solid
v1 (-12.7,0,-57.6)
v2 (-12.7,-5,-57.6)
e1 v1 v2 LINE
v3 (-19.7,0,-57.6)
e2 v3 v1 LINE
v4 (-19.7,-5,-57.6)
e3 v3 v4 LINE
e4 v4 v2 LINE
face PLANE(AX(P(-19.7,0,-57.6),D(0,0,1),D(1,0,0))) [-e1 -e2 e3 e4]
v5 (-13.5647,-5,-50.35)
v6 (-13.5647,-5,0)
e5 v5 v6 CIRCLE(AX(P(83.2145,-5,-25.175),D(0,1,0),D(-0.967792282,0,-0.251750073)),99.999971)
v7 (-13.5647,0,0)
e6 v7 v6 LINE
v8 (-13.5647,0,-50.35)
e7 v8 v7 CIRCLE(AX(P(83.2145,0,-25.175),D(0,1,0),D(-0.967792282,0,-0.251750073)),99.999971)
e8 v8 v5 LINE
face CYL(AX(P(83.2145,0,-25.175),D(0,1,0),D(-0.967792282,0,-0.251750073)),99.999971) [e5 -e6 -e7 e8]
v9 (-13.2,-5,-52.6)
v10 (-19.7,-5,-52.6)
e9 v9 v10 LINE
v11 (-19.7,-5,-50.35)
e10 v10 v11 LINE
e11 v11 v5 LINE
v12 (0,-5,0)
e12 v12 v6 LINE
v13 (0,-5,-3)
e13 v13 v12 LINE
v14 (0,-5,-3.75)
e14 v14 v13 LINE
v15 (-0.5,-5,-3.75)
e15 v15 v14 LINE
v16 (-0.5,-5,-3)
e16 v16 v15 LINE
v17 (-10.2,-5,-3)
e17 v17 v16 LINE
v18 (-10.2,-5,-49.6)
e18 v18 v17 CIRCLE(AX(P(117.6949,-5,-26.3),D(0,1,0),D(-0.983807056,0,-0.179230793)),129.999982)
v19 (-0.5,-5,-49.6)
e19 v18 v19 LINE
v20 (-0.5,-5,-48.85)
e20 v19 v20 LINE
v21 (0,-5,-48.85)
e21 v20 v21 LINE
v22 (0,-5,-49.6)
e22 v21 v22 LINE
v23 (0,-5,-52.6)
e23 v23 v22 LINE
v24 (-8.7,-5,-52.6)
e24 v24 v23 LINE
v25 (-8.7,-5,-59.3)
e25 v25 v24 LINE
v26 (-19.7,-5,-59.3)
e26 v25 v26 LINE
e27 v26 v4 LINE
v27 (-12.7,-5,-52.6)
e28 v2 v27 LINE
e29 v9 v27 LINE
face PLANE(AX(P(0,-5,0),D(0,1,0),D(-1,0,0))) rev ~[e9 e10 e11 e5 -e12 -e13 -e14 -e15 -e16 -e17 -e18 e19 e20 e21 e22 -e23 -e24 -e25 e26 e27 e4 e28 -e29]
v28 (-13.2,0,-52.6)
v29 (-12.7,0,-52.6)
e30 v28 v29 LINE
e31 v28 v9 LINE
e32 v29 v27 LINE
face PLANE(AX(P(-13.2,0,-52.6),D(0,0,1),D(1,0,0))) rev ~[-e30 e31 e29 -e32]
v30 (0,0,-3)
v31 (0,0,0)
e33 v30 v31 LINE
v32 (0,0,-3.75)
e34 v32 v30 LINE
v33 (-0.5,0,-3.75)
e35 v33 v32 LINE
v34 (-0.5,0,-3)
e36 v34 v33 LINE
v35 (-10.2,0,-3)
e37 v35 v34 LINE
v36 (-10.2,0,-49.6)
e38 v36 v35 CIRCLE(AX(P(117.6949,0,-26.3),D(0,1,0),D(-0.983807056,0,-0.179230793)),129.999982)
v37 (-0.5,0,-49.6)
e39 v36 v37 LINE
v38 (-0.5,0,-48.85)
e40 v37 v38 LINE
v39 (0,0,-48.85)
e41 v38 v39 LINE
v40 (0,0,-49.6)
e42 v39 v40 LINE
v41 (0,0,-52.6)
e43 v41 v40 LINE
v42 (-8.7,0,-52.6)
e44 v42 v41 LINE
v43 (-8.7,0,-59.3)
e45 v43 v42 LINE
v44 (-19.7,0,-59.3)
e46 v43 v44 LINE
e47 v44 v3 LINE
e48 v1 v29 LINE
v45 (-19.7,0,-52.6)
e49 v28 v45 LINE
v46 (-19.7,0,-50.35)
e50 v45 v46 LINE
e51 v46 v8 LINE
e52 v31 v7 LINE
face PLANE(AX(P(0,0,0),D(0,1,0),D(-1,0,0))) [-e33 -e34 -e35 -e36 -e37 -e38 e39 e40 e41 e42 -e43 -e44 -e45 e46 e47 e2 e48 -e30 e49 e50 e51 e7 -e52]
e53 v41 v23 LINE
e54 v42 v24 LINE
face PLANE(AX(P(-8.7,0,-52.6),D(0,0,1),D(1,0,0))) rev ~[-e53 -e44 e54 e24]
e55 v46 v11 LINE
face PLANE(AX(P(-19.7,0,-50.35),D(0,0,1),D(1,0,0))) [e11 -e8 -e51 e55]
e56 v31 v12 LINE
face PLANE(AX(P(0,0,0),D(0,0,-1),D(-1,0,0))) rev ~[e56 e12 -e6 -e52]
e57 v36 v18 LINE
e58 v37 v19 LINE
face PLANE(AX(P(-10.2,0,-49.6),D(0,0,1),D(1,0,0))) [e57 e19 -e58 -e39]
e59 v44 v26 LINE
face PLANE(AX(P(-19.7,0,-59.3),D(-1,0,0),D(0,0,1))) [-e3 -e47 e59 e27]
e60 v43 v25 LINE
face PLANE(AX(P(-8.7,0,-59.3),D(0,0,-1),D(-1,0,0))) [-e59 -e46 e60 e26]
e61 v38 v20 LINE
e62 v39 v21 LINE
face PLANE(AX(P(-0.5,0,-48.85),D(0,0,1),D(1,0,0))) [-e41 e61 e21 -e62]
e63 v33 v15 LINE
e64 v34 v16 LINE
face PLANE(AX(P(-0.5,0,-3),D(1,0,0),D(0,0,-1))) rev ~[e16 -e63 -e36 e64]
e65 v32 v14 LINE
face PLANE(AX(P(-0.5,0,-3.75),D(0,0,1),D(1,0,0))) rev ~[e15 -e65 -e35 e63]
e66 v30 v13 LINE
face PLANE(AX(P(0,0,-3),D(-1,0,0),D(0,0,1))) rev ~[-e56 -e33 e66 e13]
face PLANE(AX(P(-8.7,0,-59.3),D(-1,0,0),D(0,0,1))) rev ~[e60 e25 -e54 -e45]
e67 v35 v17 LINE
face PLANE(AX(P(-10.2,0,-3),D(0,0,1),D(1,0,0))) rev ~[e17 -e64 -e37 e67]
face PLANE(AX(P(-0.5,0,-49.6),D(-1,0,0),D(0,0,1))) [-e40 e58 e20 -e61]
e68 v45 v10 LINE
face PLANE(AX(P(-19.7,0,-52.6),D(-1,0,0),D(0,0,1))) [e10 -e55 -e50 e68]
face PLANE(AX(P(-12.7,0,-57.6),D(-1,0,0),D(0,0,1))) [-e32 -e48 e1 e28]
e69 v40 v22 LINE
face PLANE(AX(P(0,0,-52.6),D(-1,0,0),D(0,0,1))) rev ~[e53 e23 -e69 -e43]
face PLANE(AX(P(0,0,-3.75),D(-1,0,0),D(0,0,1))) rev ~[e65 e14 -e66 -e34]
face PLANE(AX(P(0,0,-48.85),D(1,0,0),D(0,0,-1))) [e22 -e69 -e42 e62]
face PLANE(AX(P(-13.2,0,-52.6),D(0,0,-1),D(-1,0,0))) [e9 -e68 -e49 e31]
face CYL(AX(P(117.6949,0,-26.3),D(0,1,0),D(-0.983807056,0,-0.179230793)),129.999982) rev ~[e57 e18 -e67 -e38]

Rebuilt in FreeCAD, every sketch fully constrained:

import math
import FreeCAD as App
import Part
import Sketcher
from FreeCAD import Vector

doc = App.newDocument("Part")
body = doc.addObject("PartDesign::Body", "Body")

# Sketch on XZ plane
sketch1 = body.newObject("Sketcher::SketchObject", "Sketch")
sketch1.AttachmentSupport = (doc.getObject("XZ_Plane"), [""])
sketch1.MapMode = "FlatFace"
sketch1.addGeometry(Part.LineSegment(Vector(-0.5, -3, 0), Vector(-10.2, -3, 0)), False)
sketch1.addGeometry(Part.ArcOfCircle(Part.Circle(Vector(117.7, -26.3, 0), Vector(0, 0, 1), 130), math.radians(170), math.radians(190)), False)
sketch1.addGeometry(Part.LineSegment(Vector(-10.2, -49.6, 0), Vector(-0.5, -49.6, 0)), False)
sketch1.addGeometry(Part.LineSegment(Vector(-0.5, -49.6, 0), Vector(-0.5, -48.9, 0)), False)
sketch1.addGeometry(Part.LineSegment(Vector(-0.5, -48.9, 0), Vector(0, -48.9, 0)), False)
sketch1.addGeometry(Part.LineSegment(Vector(0, -48.9, 0), Vector(0, -52.6, 0)), False)
sketch1.addGeometry(Part.LineSegment(Vector(0, -52.6, 0), Vector(-8.7, -52.6, 0)), False)
sketch1.addGeometry(Part.LineSegment(Vector(-8.7, -52.6, 0), Vector(-8.7, -59.3, 0)), False)
sketch1.addGeometry(Part.LineSegment(Vector(-8.7, -59.3, 0), Vector(-19.7, -59.3, 0)), False)
sketch1.addGeometry(Part.LineSegment(Vector(-19.7, -59.3, 0), Vector(-19.7, -57.6, 0)), False)
sketch1.addGeometry(Part.LineSegment(Vector(-19.7, -57.6, 0), Vector(-12.7, -57.6, 0)), False)
sketch1.addGeometry(Part.LineSegment(Vector(-12.7, -57.6, 0), Vector(-12.7, -52.6, 0)), False)
sketch1.addGeometry(Part.LineSegment(Vector(-12.7, -52.6, 0), Vector(-19.7, -52.6, 0)), False)
sketch1.addGeometry(Part.LineSegment(Vector(-19.7, -52.6, 0), Vector(-19.7, -50.4, 0)), False)
sketch1.addGeometry(Part.LineSegment(Vector(-19.7, -50.4, 0), Vector(-13.6, -50.4, 0)), False)
sketch1.addGeometry(Part.ArcOfCircle(Part.Circle(Vector(83.2, -25.2, 0), Vector(0, 0, 1), 100), math.radians(165), math.radians(195)), False)
sketch1.addGeometry(Part.LineSegment(Vector(-13.6, 0, 0), Vector(0, 0, 0)), False)
sketch1.addGeometry(Part.LineSegment(Vector(0, 0, 0), Vector(0, -3.8, 0)), False)
sketch1.addGeometry(Part.LineSegment(Vector(0, -3.8, 0), Vector(-0.5, -3.8, 0)), False)
sketch1.addGeometry(Part.LineSegment(Vector(-0.5, -3.8, 0), Vector(-0.5, -3, 0)), False)
sketch1.addConstraint(Sketcher.Constraint("Coincident", 0, 2, 1, 1))
sketch1.addConstraint(Sketcher.Constraint("Coincident", 1, 2, 2, 1))
sketch1.addConstraint(Sketcher.Constraint("Coincident", 2, 2, 3, 1))
sketch1.addConstraint(Sketcher.Constraint("Coincident", 3, 2, 4, 1))
sketch1.addConstraint(Sketcher.Constraint("Coincident", 4, 2, 5, 1))
sketch1.addConstraint(Sketcher.Constraint("Coincident", 5, 2, 6, 1))
sketch1.addConstraint(Sketcher.Constraint("Coincident", 6, 2, 7, 1))
sketch1.addConstraint(Sketcher.Constraint("Coincident", 7, 2, 8, 1))
sketch1.addConstraint(Sketcher.Constraint("Coincident", 8, 2, 9, 1))
sketch1.addConstraint(Sketcher.Constraint("Coincident", 9, 2, 10, 1))
sketch1.addConstraint(Sketcher.Constraint("Coincident", 10, 2, 11, 1))
sketch1.addConstraint(Sketcher.Constraint("Coincident", 11, 2, 12, 1))
sketch1.addConstraint(Sketcher.Constraint("Coincident", 12, 2, 13, 1))
sketch1.addConstraint(Sketcher.Constraint("Coincident", 13, 2, 14, 1))
sketch1.addConstraint(Sketcher.Constraint("Coincident", 14, 2, 15, 2))
sketch1.addConstraint(Sketcher.Constraint("Coincident", 15, 1, 16, 1))
sketch1.addConstraint(Sketcher.Constraint("Coincident", 16, 2, 17, 1))
sketch1.addConstraint(Sketcher.Constraint("Coincident", 17, 2, 18, 1))
sketch1.addConstraint(Sketcher.Constraint("Coincident", 18, 2, 19, 1))
sketch1.addConstraint(Sketcher.Constraint("Coincident", 19, 2, 0, 1))
sketch1.addConstraint(Sketcher.Constraint("Horizontal", 0))
sketch1.addConstraint(Sketcher.Constraint("Horizontal", 2))
sketch1.addConstraint(Sketcher.Constraint("Vertical", 3))
sketch1.addConstraint(Sketcher.Constraint("Horizontal", 4))
sketch1.addConstraint(Sketcher.Constraint("Vertical", 5))
sketch1.addConstraint(Sketcher.Constraint("Horizontal", 6))
sketch1.addConstraint(Sketcher.Constraint("Vertical", 7))
sketch1.addConstraint(Sketcher.Constraint("Horizontal", 8))
sketch1.addConstraint(Sketcher.Constraint("Vertical", 9))
sketch1.addConstraint(Sketcher.Constraint("Horizontal", 10))
sketch1.addConstraint(Sketcher.Constraint("Vertical", 11))
sketch1.addConstraint(Sketcher.Constraint("Horizontal", 12))
sketch1.addConstraint(Sketcher.Constraint("Vertical", 13))
sketch1.addConstraint(Sketcher.Constraint("Horizontal", 14))
sketch1.addConstraint(Sketcher.Constraint("Horizontal", 16))
sketch1.addConstraint(Sketcher.Constraint("Vertical", 17))
sketch1.addConstraint(Sketcher.Constraint("Horizontal", 18))
sketch1.addConstraint(Sketcher.Constraint("Vertical", 19))
sketch1.addConstraint(Sketcher.Constraint("Coincident", 16, 2, -1, 1))
sketch1.addConstraint(Sketcher.Constraint("PointOnObject", 4, 2, -2))
sketch1.addConstraint(Sketcher.Constraint("Horizontal", 6, 2, 11, 2))
sketch1.addConstraint(Sketcher.Constraint("Vertical", 0, 2, 1, 2))
sketch1.addConstraint(Sketcher.Constraint("Vertical", 9, 2, 12, 2))
sketch1.addConstraint(Sketcher.Constraint("Vertical", 14, 2, 15, 1))
sketch1.addConstraint(Sketcher.Constraint("Vertical", 3, 2, 18, 2))
sketch1.addConstraint(Sketcher.Constraint("Equal", 5, 17))
sketch1.addConstraint(Sketcher.Constraint("Equal", 3, 19))
sketch1.addConstraint(Sketcher.Constraint("Radius", 1, 130.0))
sketch1.addConstraint(Sketcher.Constraint("Radius", 15, 100.0))
sketch1.addConstraint(Sketcher.Constraint("DistanceX", 10, 1, 10, 2, 7.0))
sketch1.addConstraint(Sketcher.Constraint("DistanceY", 11, 1, 11, 2, 5.0))
sketch1.addConstraint(Sketcher.Constraint("DistanceX", 0, 2, 0, 1, 9.7))
sketch1.addConstraint(Sketcher.Constraint("DistanceX", 4, 1, 4, 2, 0.5))
sketch1.addConstraint(Sketcher.Constraint("DistanceY", 9, 1, 9, 2, 1.7))
sketch1.addConstraint(Sketcher.Constraint("DistanceY", 0, 2, -1, 1, 3.0))
sketch1.addConstraint(Sketcher.Constraint("DistanceX", 10, 2, 7, 2, 4.0))
sketch1.addConstraint(Sketcher.Constraint("DistanceY", 3, 1, 3, 2, 0.75))
sketch1.addConstraint(Sketcher.Constraint("DistanceY", 13, 1, 13, 2, 2.25))
sketch1.addConstraint(Sketcher.Constraint("DistanceX", 10, 2, -1, 1, 12.7))
sketch1.addConstraint(Sketcher.Constraint("DistanceY", 2, 2, 0, 2, 46.6))
sketch1.addConstraint(Sketcher.Constraint("DistanceX", 14, 1, 14, 2, 6.1353))
pad1 = body.newObject("PartDesign::Pad", "Pad")
pad1.Profile = sketch1
pad1.Length = 5

doc.recompute()
